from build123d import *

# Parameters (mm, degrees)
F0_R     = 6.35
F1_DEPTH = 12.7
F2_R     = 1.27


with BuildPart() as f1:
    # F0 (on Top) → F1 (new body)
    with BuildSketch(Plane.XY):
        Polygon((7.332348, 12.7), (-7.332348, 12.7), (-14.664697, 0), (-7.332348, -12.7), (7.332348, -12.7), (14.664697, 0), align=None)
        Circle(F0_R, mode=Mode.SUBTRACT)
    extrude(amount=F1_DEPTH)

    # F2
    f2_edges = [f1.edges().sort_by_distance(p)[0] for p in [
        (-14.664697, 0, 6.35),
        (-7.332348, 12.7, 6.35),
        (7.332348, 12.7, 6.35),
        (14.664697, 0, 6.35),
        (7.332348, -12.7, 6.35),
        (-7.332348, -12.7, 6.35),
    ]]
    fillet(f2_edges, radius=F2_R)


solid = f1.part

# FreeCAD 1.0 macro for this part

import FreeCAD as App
import Part
import Sketcher

V = App.Vector
Q = App.Units.Quantity


def edges_at(feature, points):
    """Names of the edges that pass closest to the given points."""
    edges = feature.Shape.Edges
    near = lambda p: min(range(len(edges)), key=lambda i: edges[i].distToShape(Part.Vertex(*p))[0])
    return sorted({f"Edge{near(p) + 1}" for p in points})

doc = App.newDocument("Part")
params = doc.addObject("Spreadsheet::Sheet", "Params")
for row, (alias, value) in enumerate([
    ("sketch1_diameter", "0.5 in"),
    ("pad1_length", "0.5 in"),
    ("fillet_radius", "0.05 in"),
], start=1):
    params.set(f"A{row}", alias)
    params.set(f"B{row}", "=" + value)
    params.setAlias(f"B{row}", alias)

body = doc.addObject("PartDesign::Body", "Body")

sketch1 = body.newObject("Sketcher::SketchObject", "Sketch")
sketch1.AttachmentSupport = (doc.getObject("XY_Plane"), [""])
sketch1.MapMode = "FlatFace"
sketch1.addGeometry([
    Part.LineSegment(V(7, 13, 0), V(-7, 13, 0)),
    Part.LineSegment(V(-7, 13, 0), V(-15, 0, 0)),
    Part.LineSegment(V(-15, 0, 0), V(-7, -13, 0)),
    Part.LineSegment(V(-7, -13, 0), V(7, -13, 0)),
    Part.LineSegment(V(7, -13, 0), V(15, 0, 0)),
    Part.LineSegment(V(15, 0, 0), V(7, 13, 0)),
    Part.Circle(V(0, 0, 0), V(0, 0, 1), 6),
], False)
sketch1.addConstraint([
    Sketcher.Constraint("Coincident", 0, 2, 1, 1),
    Sketcher.Constraint("Coincident", 1, 2, 2, 1),
    Sketcher.Constraint("Coincident", 2, 2, 3, 1),
    Sketcher.Constraint("Coincident", 3, 2, 4, 1),
    Sketcher.Constraint("Coincident", 4, 2, 5, 1),
    Sketcher.Constraint("Coincident", 5, 2, 0, 1),
    Sketcher.Constraint("Horizontal", 0),
    Sketcher.Constraint("Horizontal", 3),
    Sketcher.Constraint("Coincident", 6, 3, -1, 1),
    Sketcher.Constraint("Symmetric", 0, 2, 3, 2, -1, 1),
    Sketcher.Constraint("Symmetric", 1, 2, 4, 2, -1, 1),
    Sketcher.Constraint("PointOnObject", 1, 2, -1),
    Sketcher.Constraint("Parallel", 2, 5),
    Sketcher.Constraint("Vertical", 0, 2, 2, 2),
    Sketcher.Constraint("Diameter", 6, Q("0.5 in")),
    Sketcher.Constraint("Angle", 1, Q("-120.000002 deg")),
    Sketcher.Constraint("DistanceY", 2, 2, 0, 2, Q("1 in")),
    Sketcher.Constraint("DistanceX", 0, 2, 0, 1, 14.664696),
])
sketch1.setExpression("Constraints[14]", "Params.sketch1_diameter")
pad1 = body.newObject("PartDesign::Pad", "Pad")
pad1.Profile = sketch1
pad1.setExpression("Length", "Params.pad1_length")
doc.recompute()

fillet = body.newObject("PartDesign::Fillet", "Fillet")
fillet.Base = (pad1, edges_at(pad1, [
    (-14.665, 0, 6.35),
    (-7.332, 12.7, 6.35),
    (7.332, 12.7, 6.35),
    (14.665, 0, 6.35),
    (7.332, -12.7, 6.35),
    (-7.332, -12.7, 6.35),
]))
fillet.setExpression("Radius", "Params.fillet_radius")

doc.recompute()
